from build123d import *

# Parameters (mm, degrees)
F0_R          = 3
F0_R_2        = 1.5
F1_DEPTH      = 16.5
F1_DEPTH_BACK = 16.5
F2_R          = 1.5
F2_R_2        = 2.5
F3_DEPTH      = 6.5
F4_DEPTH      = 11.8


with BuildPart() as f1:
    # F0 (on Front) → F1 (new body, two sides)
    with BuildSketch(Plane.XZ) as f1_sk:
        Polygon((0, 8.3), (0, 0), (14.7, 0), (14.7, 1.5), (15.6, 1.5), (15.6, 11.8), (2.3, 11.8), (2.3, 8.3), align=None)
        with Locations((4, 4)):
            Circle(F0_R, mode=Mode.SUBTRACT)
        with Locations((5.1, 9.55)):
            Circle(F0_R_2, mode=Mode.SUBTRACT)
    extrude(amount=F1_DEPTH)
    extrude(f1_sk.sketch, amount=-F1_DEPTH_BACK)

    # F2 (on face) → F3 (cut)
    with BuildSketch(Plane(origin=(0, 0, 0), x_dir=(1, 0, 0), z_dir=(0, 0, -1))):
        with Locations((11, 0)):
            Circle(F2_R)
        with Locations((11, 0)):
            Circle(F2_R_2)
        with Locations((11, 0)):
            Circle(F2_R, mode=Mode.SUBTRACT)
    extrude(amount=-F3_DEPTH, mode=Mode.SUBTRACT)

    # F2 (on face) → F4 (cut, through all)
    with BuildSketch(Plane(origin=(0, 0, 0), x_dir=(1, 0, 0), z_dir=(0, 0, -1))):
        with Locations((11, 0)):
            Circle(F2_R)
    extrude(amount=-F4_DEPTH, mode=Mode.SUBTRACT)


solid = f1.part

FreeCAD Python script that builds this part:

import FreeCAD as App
import Part
import Sketcher


def add_polygon(sketch, points):
    """Adds a closed chain of lines whose ends are joined by coincident constraints."""
    first, n = sketch.GeometryCount, len(points)
    for a, b in zip(points, points[1:] + points[:1]):
        sketch.addGeometry(Part.LineSegment(App.Vector(*a, 0), App.Vector(*b, 0)), False)
    for i in range(n):
        sketch.addConstraint(Sketcher.Constraint("Coincident", first + i, 2, first + (i + 1) % n, 1))

doc = App.newDocument("Part")
params = doc.addObject("Spreadsheet::Sheet", "Params")
for row, (alias, value) in enumerate([
    ("sketch1_diameter", "6 mm"),
    ("sketch1_diameter2", "3 mm"),
    ("sketch1_width", "14.7 mm"),
    ("sketch1_width2", "0.9 mm"),
    ("sketch1_width3", "13.3 mm"),
    ("pad1_length", "16.5 mm"),
    ("pad1_length2", "16.5 mm"),
    ("sketch2_diameter", "5 mm"),
    ("sketch2_diameter2", "3 mm"),
    ("pocket1_length", "6.5 mm"),
    ("sketch3_diameter", "3 mm"),
], start=1):
    params.set(f"A{row}", alias)
    params.set(f"B{row}", "=" + value)
    params.setAlias(f"B{row}", alias)

body = doc.addObject("PartDesign::Body", "Body")

# Sketch on XZ plane
sketch1 = body.newObject("Sketcher::SketchObject", "Sketch")
sketch1.AttachmentSupport = (doc.getObject("XZ_Plane"), [""])
sketch1.MapMode = "FlatFace"
add_polygon(sketch1, [(0, 8.3), (0, 0), (14.7, 0), (14.7, 1.5), (15.6, 1.5), (15.6, 11.8), (2.3, 11.8), (2.3, 8.3)])  # lines 0-7
sketch1.addGeometry(Part.Circle(App.Vector(4, 4, 0), App.Vector(0, 0, 1), 3), False)  # 8
sketch1.addGeometry(Part.Circle(App.Vector(5.1, 9.55, 0), App.Vector(0, 0, 1), 1.5), False)  # 9
sketch1.addConstraint(Sketcher.Constraint("Vertical", 0))
sketch1.addConstraint(Sketcher.Constraint("Horizontal", 1))
sketch1.addConstraint(Sketcher.Constraint("Vertical", 2))
sketch1.addConstraint(Sketcher.Constraint("Horizontal", 3))
sketch1.addConstraint(Sketcher.Constraint("Vertical", 4))
sketch1.addConstraint(Sketcher.Constraint("Horizontal", 5))
sketch1.addConstraint(Sketcher.Constraint("Vertical", 6))
sketch1.addConstraint(Sketcher.Constraint("Horizontal", 7))
sketch1.addConstraint(Sketcher.Constraint("Coincident", 0, 2, -1, 1))
sketch1.addConstraint(Sketcher.Constraint("Diameter", 8, 6.0))
sketch1.addConstraint(Sketcher.Constraint("Diameter", 9, 3.0))
sketch1.addConstraint(Sketcher.Constraint("DistanceX", 1, 1, 1, 2, 14.7))
sketch1.addConstraint(Sketcher.Constraint("DistanceX", 3, 1, 3, 2, 0.9))
sketch1.addConstraint(Sketcher.Constraint("DistanceX", 5, 2, 5, 1, 13.3))
sketch1.addConstraint(Sketcher.Constraint("DistanceY", 0, 2, 0, 1, 8.3))
sketch1.addConstraint(Sketcher.Constraint("DistanceY", 2, 1, 2, 2, 1.5))
sketch1.addConstraint(Sketcher.Constraint("DistanceY", 4, 1, 4, 2, 10.3))
sketch1.addConstraint(Sketcher.Constraint("DistanceX", -1, 1, 8, 3, 4.0))
sketch1.addConstraint(Sketcher.Constraint("DistanceY", -1, 1, 8, 3, 4.0))
sketch1.addConstraint(Sketcher.Constraint("DistanceX", -1, 1, 9, 3, 5.1))
sketch1.addConstraint(Sketcher.Constraint("DistanceY", -1, 1, 9, 3, 9.55))
sketch1.setExpression("Constraints[17]", "Params.sketch1_diameter")
sketch1.setExpression("Constraints[18]", "Params.sketch1_diameter2")
sketch1.setExpression("Constraints[19]", "Params.sketch1_width")
sketch1.setExpression("Constraints[20]", "Params.sketch1_width2")
sketch1.setExpression("Constraints[21]", "Params.sketch1_width3")
pad1 = body.newObject("PartDesign::Pad", "Pad")
pad1.Profile = sketch1
pad1.Type = "TwoLengths"
pad1.setExpression("Length", "Params.pad1_length")
pad1.setExpression("Length2", "Params.pad1_length2")

# Sketch on XY plane
sketch2 = body.newObject("Sketcher::SketchObject", "Sketch001")
sketch2.AttachmentSupport = (doc.getObject("XY_Plane"), [""])
sketch2.MapMode = "FlatFace"
sketch2.addGeometry(Part.Circle(App.Vector(11, 0, 0), App.Vector(0, 0, 1), 2.5), False)
sketch2.addGeometry(Part.Circle(App.Vector(11, 0, 0), App.Vector(0, 0, 1), 1.5), False)
sketch2.addConstraint(Sketcher.Constraint("Coincident", 1, 3, 0, 3))
sketch2.addConstraint(Sketcher.Constraint("PointOnObject", 0, 3, -1))
sketch2.addConstraint(Sketcher.Constraint("Diameter", 0, 5.0))
sketch2.addConstraint(Sketcher.Constraint("Diameter", 1, 3.0))
sketch2.addConstraint(Sketcher.Constraint("DistanceX", -1, 1, 0, 3, 11.0))
sketch2.setExpression("Constraints[2]", "Params.sketch2_diameter")
sketch2.setExpression("Constraints[3]", "Params.sketch2_diameter2")
pocket1 = body.newObject("PartDesign::Pocket", "Pocket")
pocket1.Profile = sketch2
pocket1.setExpression("Length", "Params.pocket1_length")
pocket1.Reversed = True

# Sketch on XY plane
sketch3 = body.newObject("Sketcher::SketchObject", "Sketch002")
sketch3.AttachmentSupport = (doc.getObject("XY_Plane"), [""])
sketch3.MapMode = "FlatFace"
sketch3.addGeometry(Part.Circle(App.Vector(11, 0, 0), App.Vector(0, 0, 1), 1.5), False)
sketch3.addConstraint(Sketcher.Constraint("PointOnObject", 0, 3, -1))
sketch3.addConstraint(Sketcher.Constraint("Diameter", 0, 3.0))
sketch3.addConstraint(Sketcher.Constraint("DistanceX", -1, 1, 0, 3, 11.0))
sketch3.setExpression("Constraints[1]", "Params.sketch3_diameter")
pocket2 = body.newObject("PartDesign::Pocket", "Pocket001")
pocket2.Profile = sketch3
pocket2.Type = "ThroughAll"
pocket2.Reversed = True

doc.recompute()
